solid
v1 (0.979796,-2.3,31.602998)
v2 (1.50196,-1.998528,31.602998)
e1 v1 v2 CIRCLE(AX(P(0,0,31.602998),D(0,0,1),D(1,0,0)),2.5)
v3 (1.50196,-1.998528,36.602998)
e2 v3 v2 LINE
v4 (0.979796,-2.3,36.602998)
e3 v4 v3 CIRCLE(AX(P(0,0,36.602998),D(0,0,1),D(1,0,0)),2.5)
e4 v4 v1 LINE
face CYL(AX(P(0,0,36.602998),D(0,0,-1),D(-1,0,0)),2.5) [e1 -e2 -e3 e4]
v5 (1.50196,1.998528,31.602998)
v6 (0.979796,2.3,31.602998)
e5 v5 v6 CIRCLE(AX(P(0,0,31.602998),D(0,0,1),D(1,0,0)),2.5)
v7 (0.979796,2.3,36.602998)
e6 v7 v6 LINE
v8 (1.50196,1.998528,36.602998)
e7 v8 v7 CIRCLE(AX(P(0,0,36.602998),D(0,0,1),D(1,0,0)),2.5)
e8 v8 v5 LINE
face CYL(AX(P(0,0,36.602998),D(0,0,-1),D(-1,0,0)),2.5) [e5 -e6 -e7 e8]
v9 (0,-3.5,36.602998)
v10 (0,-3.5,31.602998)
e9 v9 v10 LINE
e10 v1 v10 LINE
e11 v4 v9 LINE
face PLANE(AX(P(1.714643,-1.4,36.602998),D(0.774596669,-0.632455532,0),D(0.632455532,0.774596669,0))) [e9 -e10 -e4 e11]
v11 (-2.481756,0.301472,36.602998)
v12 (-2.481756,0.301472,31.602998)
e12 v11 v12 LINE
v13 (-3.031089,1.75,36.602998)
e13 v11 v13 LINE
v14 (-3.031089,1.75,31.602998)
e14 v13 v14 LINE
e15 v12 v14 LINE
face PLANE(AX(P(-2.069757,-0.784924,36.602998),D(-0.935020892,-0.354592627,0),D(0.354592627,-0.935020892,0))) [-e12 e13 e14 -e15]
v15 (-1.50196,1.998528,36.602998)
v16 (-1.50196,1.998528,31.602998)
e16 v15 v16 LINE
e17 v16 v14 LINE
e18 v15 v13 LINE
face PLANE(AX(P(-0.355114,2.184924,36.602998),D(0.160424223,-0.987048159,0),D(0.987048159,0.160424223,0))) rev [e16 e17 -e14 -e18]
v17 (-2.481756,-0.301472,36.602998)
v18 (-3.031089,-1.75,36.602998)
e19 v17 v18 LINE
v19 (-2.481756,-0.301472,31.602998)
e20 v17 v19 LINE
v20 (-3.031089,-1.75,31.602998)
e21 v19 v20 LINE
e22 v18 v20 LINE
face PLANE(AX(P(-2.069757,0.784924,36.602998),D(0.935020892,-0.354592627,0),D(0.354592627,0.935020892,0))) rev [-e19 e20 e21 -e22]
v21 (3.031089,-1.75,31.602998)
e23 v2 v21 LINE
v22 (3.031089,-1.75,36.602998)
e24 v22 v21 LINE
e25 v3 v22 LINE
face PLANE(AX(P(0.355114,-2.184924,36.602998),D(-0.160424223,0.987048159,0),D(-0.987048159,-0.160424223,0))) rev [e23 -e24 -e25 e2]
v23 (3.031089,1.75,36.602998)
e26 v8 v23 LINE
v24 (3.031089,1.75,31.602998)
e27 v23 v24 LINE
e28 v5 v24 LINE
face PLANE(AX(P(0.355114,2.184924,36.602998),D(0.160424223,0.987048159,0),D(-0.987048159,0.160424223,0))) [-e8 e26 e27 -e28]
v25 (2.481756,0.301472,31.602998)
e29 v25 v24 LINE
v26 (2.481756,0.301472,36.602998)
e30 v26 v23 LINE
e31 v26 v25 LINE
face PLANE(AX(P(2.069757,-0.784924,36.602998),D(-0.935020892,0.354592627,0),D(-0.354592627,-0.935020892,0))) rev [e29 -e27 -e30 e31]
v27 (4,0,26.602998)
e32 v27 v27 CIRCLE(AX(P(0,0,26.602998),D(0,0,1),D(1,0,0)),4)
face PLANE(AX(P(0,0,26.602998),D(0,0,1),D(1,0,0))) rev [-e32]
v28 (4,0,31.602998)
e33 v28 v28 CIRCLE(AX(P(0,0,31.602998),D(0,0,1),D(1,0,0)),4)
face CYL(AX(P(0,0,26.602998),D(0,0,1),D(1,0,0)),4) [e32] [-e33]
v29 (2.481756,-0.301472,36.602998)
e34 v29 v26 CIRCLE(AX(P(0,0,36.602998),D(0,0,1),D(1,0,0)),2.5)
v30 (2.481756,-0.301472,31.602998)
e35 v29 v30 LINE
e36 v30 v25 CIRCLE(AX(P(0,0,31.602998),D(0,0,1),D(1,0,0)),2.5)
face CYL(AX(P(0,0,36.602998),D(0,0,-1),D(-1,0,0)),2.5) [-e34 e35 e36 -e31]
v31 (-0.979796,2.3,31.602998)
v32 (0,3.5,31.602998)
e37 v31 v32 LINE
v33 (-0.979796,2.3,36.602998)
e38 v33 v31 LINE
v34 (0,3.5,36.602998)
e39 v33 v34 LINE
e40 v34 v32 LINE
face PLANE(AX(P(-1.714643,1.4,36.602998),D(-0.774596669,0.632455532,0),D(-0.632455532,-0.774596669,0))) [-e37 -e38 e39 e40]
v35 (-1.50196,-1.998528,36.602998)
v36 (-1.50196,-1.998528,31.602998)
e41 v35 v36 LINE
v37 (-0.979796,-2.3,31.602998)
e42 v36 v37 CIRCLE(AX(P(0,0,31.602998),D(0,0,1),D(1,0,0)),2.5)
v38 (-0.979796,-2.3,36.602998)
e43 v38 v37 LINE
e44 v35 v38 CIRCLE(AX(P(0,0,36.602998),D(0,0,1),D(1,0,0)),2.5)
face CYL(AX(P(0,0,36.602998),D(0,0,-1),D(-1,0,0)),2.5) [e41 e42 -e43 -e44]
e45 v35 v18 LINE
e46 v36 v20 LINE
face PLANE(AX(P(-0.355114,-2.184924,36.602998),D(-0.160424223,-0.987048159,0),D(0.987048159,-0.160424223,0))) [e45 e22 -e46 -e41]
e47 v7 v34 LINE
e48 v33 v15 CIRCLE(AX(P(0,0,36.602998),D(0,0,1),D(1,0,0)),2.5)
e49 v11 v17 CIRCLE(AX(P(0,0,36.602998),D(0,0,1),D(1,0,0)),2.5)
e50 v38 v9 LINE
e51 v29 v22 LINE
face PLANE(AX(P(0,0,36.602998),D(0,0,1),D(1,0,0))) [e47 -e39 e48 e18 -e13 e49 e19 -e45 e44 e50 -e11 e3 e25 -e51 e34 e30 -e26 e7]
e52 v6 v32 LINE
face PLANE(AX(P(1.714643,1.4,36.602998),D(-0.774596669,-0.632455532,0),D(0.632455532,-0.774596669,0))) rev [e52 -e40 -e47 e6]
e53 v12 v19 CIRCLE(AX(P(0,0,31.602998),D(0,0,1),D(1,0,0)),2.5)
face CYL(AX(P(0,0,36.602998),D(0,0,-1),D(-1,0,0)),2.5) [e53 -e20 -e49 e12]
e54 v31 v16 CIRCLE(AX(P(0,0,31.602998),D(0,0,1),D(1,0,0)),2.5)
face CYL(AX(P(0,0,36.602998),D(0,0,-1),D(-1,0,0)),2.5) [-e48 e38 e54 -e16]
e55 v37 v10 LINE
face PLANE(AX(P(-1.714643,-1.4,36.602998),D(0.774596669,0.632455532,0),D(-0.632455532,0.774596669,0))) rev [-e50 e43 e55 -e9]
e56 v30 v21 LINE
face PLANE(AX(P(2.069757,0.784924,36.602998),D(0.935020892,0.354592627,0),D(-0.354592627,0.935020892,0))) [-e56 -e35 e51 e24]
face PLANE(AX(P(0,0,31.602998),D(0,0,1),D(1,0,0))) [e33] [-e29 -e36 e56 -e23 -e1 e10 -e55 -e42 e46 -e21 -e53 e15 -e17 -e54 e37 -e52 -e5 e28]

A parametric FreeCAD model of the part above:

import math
import FreeCAD as App
import Part
import Sketcher

doc = App.newDocument("Part")
body = doc.addObject("PartDesign::Body", "Body")

# Sketch on XY plane
sketch1 = doc.addObject("Sketcher::SketchObject", "Sketch")
body.addObject(sketch1)
sketch1.AttachmentSupport = (doc.XY_Plane, [""])
sketch1.MapMode = "FlatFace"
sketch1.AttachmentOffset = App.Placement(App.Vector(0, 0, 31.602998), App.Rotation())
sketch1.addGeometry([
    Part.LineSegment(App.Vector(0, 3.5, 0), App.Vector(-1, 2.3, 0)),  # 0
    Part.ArcOfCircle(Part.Circle(App.Vector(0, 0, 0), App.Vector(0, 0, 1), 2.5), math.radians(113.07), math.radians(126.93)),  # 1
    Part.LineSegment(App.Vector(-1.5, 2, 0), App.Vector(-3, 1.8, 0)),  # 2
    Part.LineSegment(App.Vector(-3, 1.8, 0), App.Vector(-2.5, 0.3, 0)),  # 3
    Part.ArcOfCircle(Part.Circle(App.Vector(0, 0, 0), App.Vector(0, 0, 1), 2.5), math.radians(173.07), math.radians(186.93)),  # 4
    Part.LineSegment(App.Vector(-2.5, -0.3, 0), App.Vector(-3, -1.8, 0)),  # 5
    Part.LineSegment(App.Vector(-3, -1.8, 0), App.Vector(-1.5, -2, 0)),  # 6
    Part.ArcOfCircle(Part.Circle(App.Vector(0, 0, 0), App.Vector(0, 0, 1), 2.5), math.radians(-126.93), math.radians(-113.07)),  # 7
    Part.LineSegment(App.Vector(-1, -2.3, 0), App.Vector(0, -3.5, 0)),  # 8
    Part.LineSegment(App.Vector(0, -3.5, 0), App.Vector(1, -2.3, 0)),  # 9
    Part.ArcOfCircle(Part.Circle(App.Vector(0, 0, 0), App.Vector(0, 0, 1), 2.5), math.radians(-66.93), math.radians(-53.07)),  # 10
    Part.LineSegment(App.Vector(1.5, -2, 0), App.Vector(3, -1.8, 0)),  # 11
    Part.LineSegment(App.Vector(3, -1.8, 0), App.Vector(2.5, -0.3, 0)),  # 12
    Part.ArcOfCircle(Part.Circle(App.Vector(0, 0, 0), App.Vector(0, 0, 1), 2.5), math.radians(-6.93), math.radians(6.93)),  # 13
    Part.LineSegment(App.Vector(2.5, 0.3, 0), App.Vector(3, 1.8, 0)),  # 14
    Part.LineSegment(App.Vector(3, 1.8, 0), App.Vector(1.5, 2, 0)),  # 15
    Part.ArcOfCircle(Part.Circle(App.Vector(0, 0, 0), App.Vector(0, 0, 1), 2.5), math.radians(53.07), math.radians(66.93)),  # 16
    Part.LineSegment(App.Vector(1, 2.3, 0), App.Vector(0, 3.5, 0)),  # 17
], False)
sketch1.addConstraint([
    Sketcher.Constraint("Coincident", 0, 2, 1, 1),
    Sketcher.Constraint("Coincident", 1, 2, 2, 1),
    Sketcher.Constraint("Coincident", 2, 2, 3, 1),
    Sketcher.Constraint("Coincident", 3, 2, 4, 1),
    Sketcher.Constraint("Coincident", 4, 2, 5, 1),
    Sketcher.Constraint("Coincident", 5, 2, 6, 1),
    Sketcher.Constraint("Coincident", 6, 2, 7, 1),
    Sketcher.Constraint("Coincident", 7, 2, 8, 1),
    Sketcher.Constraint("Coincident", 8, 2, 9, 1),
    Sketcher.Constraint("Coincident", 9, 2, 10, 1),
    Sketcher.Constraint("Coincident", 10, 2, 11, 1),
    Sketcher.Constraint("Coincident", 11, 2, 12, 1),
    Sketcher.Constraint("Coincident", 12, 2, 13, 1),
    Sketcher.Constraint("Coincident", 13, 2, 14, 1),
    Sketcher.Constraint("Coincident", 14, 2, 15, 1),
    Sketcher.Constraint("Coincident", 15, 2, 16, 1),
    Sketcher.Constraint("Coincident", 16, 2, 17, 1),
    Sketcher.Constraint("Coincident", 17, 2, 0, 1),
    Sketcher.Constraint("Coincident", 1, 3, -1, 1),
    Sketcher.Constraint("Coincident", 4, 3, -1, 1),
    Sketcher.Constraint("Coincident", 7, 3, -1, 1),
    Sketcher.Constraint("Coincident", 10, 3, -1, 1),
    Sketcher.Constraint("Coincident", 13, 3, -1, 1),
    Sketcher.Constraint("Coincident", 16, 3, -1, 1),
    Sketcher.Constraint("Equal", 1, 4),
    Sketcher.Constraint("Equal", 4, 7),
    Sketcher.Constraint("Equal", 7, 10),
    Sketcher.Constraint("Equal", 10, 13),
    Sketcher.Constraint("Equal", 13, 16),
    Sketcher.Constraint("Symmetric", 2, 2, 11, 2, -1, 1),
    Sketcher.Constraint("Symmetric", 5, 2, 14, 2, -1, 1),
    Sketcher.Constraint("Symmetric", 8, 2, 17, 2, -1, 1),
    Sketcher.Constraint("Symmetric", 5, 2, 11, 2, -2),
    Sketcher.Constraint("PointOnObject", 8, 2, -2),
    Sketcher.Constraint("Parallel", 0, 9),
    Sketcher.Constraint("Parallel", 2, 11),
    Sketcher.Constraint("Parallel", 3, 12),
    Sketcher.Constraint("Parallel", 5, 14),
    Sketcher.Constraint("Parallel", 6, 15),
    Sketcher.Constraint("Parallel", 8, 17),
    Sketcher.Constraint("Horizontal", 7, 2, 9, 2),
    Sketcher.Constraint("Horizontal", 6, 2, 10, 2),
    Sketcher.Constraint("Horizontal", 4, 2, 12, 2),
    Sketcher.Constraint("Equal", 0, 2),
    Sketcher.Constraint("Equal", 2, 3),
    Sketcher.Constraint("Radius", 1, 2.5),
    Sketcher.Constraint("DistanceY", -1, 1, 0, 2, 2.3),
    Sketcher.Constraint("DistanceY", 8, 2, -1, 1, 3.5),
    Sketcher.Constraint("DistanceY", -1, 1, 2, 2, 1.75),
    Sketcher.Constraint("DistanceX", 1, 2, -1, 1, 1.50196),
])
pad1 = doc.addObject("PartDesign::Pad", "Pad")
body.addObject(pad1)
pad1.Profile = sketch1
pad1.Length = 5

# Sketch on XY plane
sketch2 = doc.addObject("Sketcher::SketchObject", "Sketch001")
body.addObject(sketch2)
sketch2.AttachmentSupport = (doc.XY_Plane, [""])
sketch2.MapMode = "FlatFace"
sketch2.AttachmentOffset = App.Placement(App.Vector(0, 0, 31.602998), App.Rotation())
sketch2.addGeometry(Part.Circle(App.Vector(0, 0, 0), App.Vector(0, 0, 1), 4), False)
sketch2.addConstraint([
    Sketcher.Constraint("Coincident", 0, 3, -1, 1),
    Sketcher.Constraint("Diameter", 0, 8.0),
])
pad2 = doc.addObject("PartDesign::Pad", "Pad001")
body.addObject(pad2)
pad2.Profile = sketch2
pad2.Length = 5
pad2.Reversed = True

doc.recompute()
